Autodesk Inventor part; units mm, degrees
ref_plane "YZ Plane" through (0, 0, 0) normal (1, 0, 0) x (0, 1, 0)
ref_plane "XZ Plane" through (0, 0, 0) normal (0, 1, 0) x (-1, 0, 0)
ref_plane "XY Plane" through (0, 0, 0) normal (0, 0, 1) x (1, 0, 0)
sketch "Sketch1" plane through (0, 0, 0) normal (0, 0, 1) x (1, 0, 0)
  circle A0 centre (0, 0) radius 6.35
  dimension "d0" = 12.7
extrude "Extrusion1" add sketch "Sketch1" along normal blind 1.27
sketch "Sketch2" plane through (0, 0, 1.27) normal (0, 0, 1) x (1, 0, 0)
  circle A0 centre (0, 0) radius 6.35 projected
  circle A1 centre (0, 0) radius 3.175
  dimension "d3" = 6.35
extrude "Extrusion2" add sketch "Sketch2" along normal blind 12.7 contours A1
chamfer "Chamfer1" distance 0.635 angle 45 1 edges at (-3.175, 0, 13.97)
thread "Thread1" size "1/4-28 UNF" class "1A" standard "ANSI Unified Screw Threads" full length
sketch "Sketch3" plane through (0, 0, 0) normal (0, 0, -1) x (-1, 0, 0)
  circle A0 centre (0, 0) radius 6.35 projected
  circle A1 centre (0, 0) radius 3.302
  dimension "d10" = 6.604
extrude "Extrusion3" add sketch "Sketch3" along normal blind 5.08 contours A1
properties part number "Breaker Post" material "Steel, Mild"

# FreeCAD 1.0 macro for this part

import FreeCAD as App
import Part
import Sketcher
from FreeCAD import Vector
Q = App.Units.Quantity


def edges_at(feature, points):
    """Names of the edges that pass closest to the given points."""
    edges = feature.Shape.Edges
    near = lambda p: min(range(len(edges)), key=lambda i: edges[i].distToShape(Part.Vertex(*p))[0])
    return sorted({f"Edge{near(p) + 1}" for p in points})

doc = App.newDocument("Part")
params = doc.addObject("Spreadsheet::Sheet", "Params")
for row, (alias, value) in enumerate([
    ("sketch1_diameter", "0.5 in"),
    ("pad1_length", "0.05 in"),
    ("sketch2_diameter", "0.25 in"),
    ("pad2_length", "0.5 in"),
    ("chamfer_size", "0.025 in"),
    ("sketch3_diameter", "0.26 in"),
    ("pad3_length", "0.2 in"),
], start=1):
    params.set(f"A{row}", alias)
    params.set(f"B{row}", "=" + value)
    params.setAlias(f"B{row}", alias)

body = doc.addObject("PartDesign::Body", "Body")

sketch1 = body.newObject("Sketcher::SketchObject", "Sketch")
sketch1.AttachmentSupport = (doc.getObject("XY_Plane"), [""])
sketch1.MapMode = "FlatFace"
sketch1.addGeometry(Part.Circle(Vector(0, 0, 0), Vector(0, 0, 1), 6), False)
sketch1.addConstraint([
    Sketcher.Constraint("Coincident", 0, 3, -1, 1),
    Sketcher.Constraint("Diameter", 0, Q("0.5 in")),
])
sketch1.setExpression("Constraints[1]", "Params.sketch1_diameter")
pad1 = body.newObject("PartDesign::Pad", "Pad")
pad1.Profile = sketch1
pad1.setExpression("Length", "Params.pad1_length")

sketch2 = body.newObject("Sketcher::SketchObject", "Sketch001")
sketch2.AttachmentSupport = (doc.getObject("XY_Plane"), [""])
sketch2.MapMode = "FlatFace"
sketch2.AttachmentOffset = App.Placement(Vector(0, 0, 0.05 * 25.4), App.Rotation())
sketch2.addGeometry(Part.Circle(Vector(0, 0, 0), Vector(0, 0, 1), 3.2), False)
sketch2.addConstraint([
    Sketcher.Constraint("Coincident", 0, 3, -1, 1),
    Sketcher.Constraint("Diameter", 0, Q("0.25 in")),
])
sketch2.setExpression("Constraints[1]", "Params.sketch2_diameter")
pad2 = body.newObject("PartDesign::Pad", "Pad001")
pad2.Profile = sketch2
pad2.setExpression("Length", "Params.pad2_length")
doc.recompute()

chamfer = body.newObject("PartDesign::Chamfer", "Chamfer")
chamfer.Base = (pad2, edges_at(pad2, [(-3.175, 0, 13.97)]))
chamfer.setExpression("Size", "Params.chamfer_size")

sketch3 = body.newObject("Sketcher::SketchObject", "Sketch002")
sketch3.AttachmentSupport = (doc.getObject("XY_Plane"), [""])
sketch3.MapMode = "FlatFace"
sketch3.addGeometry(Part.Circle(Vector(0, 0, 0), Vector(0, 0, 1), 3.3), False)
sketch3.addConstraint([
    Sketcher.Constraint("Coincident", 0, 3, -1, 1),
    Sketcher.Constraint("Diameter", 0, Q("0.26 in")),
])
sketch3.setExpression("Constraints[1]", "Params.sketch3_diameter")
pad3 = body.newObject("PartDesign::Pad", "Pad002")
pad3.Profile = sketch3
pad3.setExpression("Length", "Params.pad3_length")
pad3.Reversed = True

doc.recompute()
